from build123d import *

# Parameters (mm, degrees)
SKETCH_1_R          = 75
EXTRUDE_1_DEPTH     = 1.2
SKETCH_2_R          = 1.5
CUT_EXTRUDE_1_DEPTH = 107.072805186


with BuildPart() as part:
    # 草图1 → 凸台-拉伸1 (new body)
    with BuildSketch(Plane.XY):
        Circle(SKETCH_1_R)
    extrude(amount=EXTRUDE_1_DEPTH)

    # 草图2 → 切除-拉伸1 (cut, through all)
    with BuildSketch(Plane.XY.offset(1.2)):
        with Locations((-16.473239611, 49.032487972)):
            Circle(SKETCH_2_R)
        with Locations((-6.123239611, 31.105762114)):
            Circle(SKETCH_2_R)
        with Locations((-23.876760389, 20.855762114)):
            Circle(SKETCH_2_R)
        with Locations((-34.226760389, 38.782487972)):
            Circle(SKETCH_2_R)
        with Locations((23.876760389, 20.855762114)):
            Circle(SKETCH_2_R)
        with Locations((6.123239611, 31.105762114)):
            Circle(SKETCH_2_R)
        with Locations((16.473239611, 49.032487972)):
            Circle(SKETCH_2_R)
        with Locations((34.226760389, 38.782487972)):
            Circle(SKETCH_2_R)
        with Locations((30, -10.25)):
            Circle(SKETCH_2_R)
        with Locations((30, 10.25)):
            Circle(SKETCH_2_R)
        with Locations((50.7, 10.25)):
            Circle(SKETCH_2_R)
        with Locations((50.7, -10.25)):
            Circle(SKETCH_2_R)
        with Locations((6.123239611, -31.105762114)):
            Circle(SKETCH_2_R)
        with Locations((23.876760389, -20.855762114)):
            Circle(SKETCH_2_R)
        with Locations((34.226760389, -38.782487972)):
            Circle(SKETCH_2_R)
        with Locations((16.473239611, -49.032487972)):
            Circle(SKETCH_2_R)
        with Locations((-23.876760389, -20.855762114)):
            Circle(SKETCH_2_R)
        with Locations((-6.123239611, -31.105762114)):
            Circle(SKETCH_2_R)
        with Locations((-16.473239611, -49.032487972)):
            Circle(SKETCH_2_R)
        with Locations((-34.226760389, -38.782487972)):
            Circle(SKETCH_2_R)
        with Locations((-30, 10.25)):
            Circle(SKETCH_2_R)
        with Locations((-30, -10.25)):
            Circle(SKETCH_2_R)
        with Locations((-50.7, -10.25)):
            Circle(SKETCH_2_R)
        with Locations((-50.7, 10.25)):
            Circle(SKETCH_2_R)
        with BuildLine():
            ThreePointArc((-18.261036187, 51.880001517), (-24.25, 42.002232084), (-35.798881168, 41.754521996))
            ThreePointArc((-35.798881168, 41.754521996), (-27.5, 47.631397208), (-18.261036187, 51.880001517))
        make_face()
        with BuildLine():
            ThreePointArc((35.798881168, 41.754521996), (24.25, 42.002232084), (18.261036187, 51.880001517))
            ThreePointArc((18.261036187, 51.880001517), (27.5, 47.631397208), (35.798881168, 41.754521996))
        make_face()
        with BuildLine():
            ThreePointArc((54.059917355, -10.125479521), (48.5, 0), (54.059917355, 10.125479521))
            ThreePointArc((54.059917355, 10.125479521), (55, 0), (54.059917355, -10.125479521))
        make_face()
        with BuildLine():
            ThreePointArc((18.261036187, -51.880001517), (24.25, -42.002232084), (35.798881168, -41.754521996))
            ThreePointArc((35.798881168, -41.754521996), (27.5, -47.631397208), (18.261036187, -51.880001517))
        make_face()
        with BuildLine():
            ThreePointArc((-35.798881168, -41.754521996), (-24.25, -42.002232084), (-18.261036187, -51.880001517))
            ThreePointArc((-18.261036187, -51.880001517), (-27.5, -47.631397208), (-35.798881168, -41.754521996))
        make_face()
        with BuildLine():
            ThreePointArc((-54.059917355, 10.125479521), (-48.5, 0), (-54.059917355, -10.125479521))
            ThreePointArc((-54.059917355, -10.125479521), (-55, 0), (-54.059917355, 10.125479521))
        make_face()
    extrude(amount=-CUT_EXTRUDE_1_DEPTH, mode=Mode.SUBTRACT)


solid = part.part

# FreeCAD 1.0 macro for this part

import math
import FreeCAD as App
import Part
import Sketcher
from FreeCAD import Vector
Q = App.Units.Quantity

doc = App.newDocument("Part")
params = doc.addObject("Spreadsheet::Sheet", "Params")
for row, (alias, value) in enumerate([
    ("sketch1_diameter", "150 mm"),
    ("pad1_length", "1.2 mm"),
    ("sketch2_diameter", "3 mm"),
    ("sketch2_radius", "12 mm"),
    ("sketch2_radius2", "55 mm"),
], start=1):
    params.set(f"A{row}", alias)
    params.set(f"B{row}", "=" + value)
    params.setAlias(f"B{row}", alias)

body = doc.addObject("PartDesign::Body", "Body")

# Sketch on XY plane
sketch1 = doc.addObject("Sketcher::SketchObject", "Sketch")
body.addObject(sketch1)
sketch1.AttachmentSupport = (doc.XY_Plane, [""])
sketch1.MapMode = "FlatFace"
sketch1.addGeometry(Part.Circle(Vector(0, 0, 0), Vector(0, 0, 1), 75), False)
sketch1.addConstraint(Sketcher.Constraint("Coincident", 0, 3, -1, 1))
sketch1.addConstraint(Sketcher.Constraint("Diameter", 0, Q("150 mm")))
sketch1.setExpression("Constraints[1]", "Params.sketch1_diameter")
pad1 = doc.addObject("PartDesign::Pad", "Pad")
body.addObject(pad1)
pad1.Profile = sketch1
pad1.setExpression("Length", "Params.pad1_length")

# Sketch on XY plane
sketch2 = doc.addObject("Sketcher::SketchObject", "Sketch001")
body.addObject(sketch2)
sketch2.AttachmentSupport = (doc.XY_Plane, [""])
sketch2.MapMode = "FlatFace"
sketch2.AttachmentOffset = App.Placement(Vector(0, 0, 1.2), App.Rotation())
sketch2.addGeometry(Part.Circle(Vector(-16.5, 49, 0), Vector(0, 0, 1), 1.5), False)
sketch2.addGeometry(Part.Circle(Vector(-6.1, 31.1, 0), Vector(0, 0, 1), 1.5), False)
sketch2.addGeometry(Part.Circle(Vector(-23.9, 20.9, 0), Vector(0, 0, 1), 1.5), False)
sketch2.addGeometry(Part.Circle(Vector(-34.2, 38.8, 0), Vector(0, 0, 1), 1.5), False)
sketch2.addGeometry(Part.Circle(Vector(23.9, 20.9, 0), Vector(0, 0, 1), 1.5), False)
sketch2.addGeometry(Part.Circle(Vector(6.1, 31.1, 0), Vector(0, 0, 1), 1.5), False)
sketch2.addGeometry(Part.Circle(Vector(16.5, 49, 0), Vector(0, 0, 1), 1.5), False)
sketch2.addGeometry(Part.Circle(Vector(34.2, 38.8, 0), Vector(0, 0, 1), 1.5), False)
sketch2.addGeometry(Part.Circle(Vector(30, -10.2, 0), Vector(0, 0, 1), 1.5), False)
sketch2.addGeometry(Part.Circle(Vector(30, 10.2, 0), Vector(0, 0, 1), 1.5), False)
sketch2.addGeometry(Part.Circle(Vector(50.7, 10.2, 0), Vector(0, 0, 1), 1.5), False)
sketch2.addGeometry(Part.Circle(Vector(50.7, -10.2, 0), Vector(0, 0, 1), 1.5), False)
sketch2.addGeometry(Part.Circle(Vector(6.1, -31.1, 0), Vector(0, 0, 1), 1.5), False)
sketch2.addGeometry(Part.Circle(Vector(23.9, -20.9, 0), Vector(0, 0, 1), 1.5), False)
sketch2.addGeometry(Part.Circle(Vector(34.2, -38.8, 0), Vector(0, 0, 1), 1.5), False)
sketch2.addGeometry(Part.Circle(Vector(16.5, -49, 0), Vector(0, 0, 1), 1.5), False)
sketch2.addGeometry(Part.Circle(Vector(-23.9, -20.9, 0), Vector(0, 0, 1), 1.5), False)
sketch2.addGeometry(Part.Circle(Vector(-6.1, -31.1, 0), Vector(0, 0, 1), 1.5), False)
sketch2.addGeometry(Part.Circle(Vector(-16.5, -49, 0), Vector(0, 0, 1), 1.5), False)
sketch2.addGeometry(Part.Circle(Vector(-34.2, -38.8, 0), Vector(0, 0, 1), 1.5), False)
sketch2.addGeometry(Part.Circle(Vector(-30, 10.2, 0), Vector(0, 0, 1), 1.5), False)
sketch2.addGeometry(Part.Circle(Vector(-30, -10.2, 0), Vector(0, 0, 1), 1.5), False)
sketch2.addGeometry(Part.Circle(Vector(-50.7, -10.2, 0), Vector(0, 0, 1), 1.5), False)
sketch2.addGeometry(Part.Circle(Vector(-50.7, 10.2, 0), Vector(0, 0, 1), 1.5), False)
sketch2.addGeometry(Part.ArcOfCircle(Part.Circle(Vector(-30.2, 52.4, 0), Vector(0, 0, 1), 12), math.radians(-118), math.radians(-2)), False)
sketch2.addGeometry(Part.ArcOfCircle(Part.Circle(Vector(0, 0, 0), Vector(0, 0, 1), 55), math.radians(109), math.radians(131)), False)
sketch2.addGeometry(Part.ArcOfCircle(Part.Circle(Vector(30.2, 52.4, 0), Vector(0, 0, 1), 12), math.radians(-178), math.radians(-62)), False)
sketch2.addGeometry(Part.ArcOfCircle(Part.Circle(Vector(0, 0, 0), Vector(0, 0, 1), 55), math.radians(49), math.radians(71)), False)
sketch2.addGeometry(Part.ArcOfCircle(Part.Circle(Vector(60.5, 0, 0), Vector(0, 0, 1), 12), math.radians(122), math.radians(238)), False)
sketch2.addGeometry(Part.ArcOfCircle(Part.Circle(Vector(0, 0, 0), Vector(0, 0, 1), 55), math.radians(-11), math.radians(11)), False)
sketch2.addGeometry(Part.ArcOfCircle(Part.Circle(Vector(30.2, -52.4, 0), Vector(0, 0, 1), 12), math.radians(62), math.radians(178)), False)
sketch2.addGeometry(Part.ArcOfCircle(Part.Circle(Vector(0, 0, 0), Vector(0, 0, 1), 55), math.radians(-71), math.radians(-49)), False)
sketch2.addGeometry(Part.ArcOfCircle(Part.Circle(Vector(-30.2, -52.4, 0), Vector(0, 0, 1), 12), math.radians(2), math.radians(118)), False)
sketch2.addGeometry(Part.ArcOfCircle(Part.Circle(Vector(0, 0, 0), Vector(0, 0, 1), 55), math.radians(-131), math.radians(-109)), False)
sketch2.addGeometry(Part.ArcOfCircle(Part.Circle(Vector(-60.5, 0, 0), Vector(0, 0, 1), 12), math.radians(-58), math.radians(58)), False)
sketch2.addGeometry(Part.ArcOfCircle(Part.Circle(Vector(0, 0, 0), Vector(0, 0, 1), 55), math.radians(169), math.radians(191)), False)
sketch2.addConstraint(Sketcher.Constraint("Coincident", 24, 1, 25, 2))
sketch2.addConstraint(Sketcher.Constraint("Coincident", 25, 1, 24, 2))
sketch2.addConstraint(Sketcher.Constraint("Coincident", 26, 1, 27, 2))
sketch2.addConstraint(Sketcher.Constraint("Coincident", 27, 1, 26, 2))
sketch2.addConstraint(Sketcher.Constraint("Coincident", 28, 1, 29, 2))
sketch2.addConstraint(Sketcher.Constraint("Coincident", 29, 1, 28, 2))
sketch2.addConstraint(Sketcher.Constraint("Coincident", 30, 1, 31, 2))
sketch2.addConstraint(Sketcher.Constraint("Coincident", 31, 1, 30, 2))
sketch2.addConstraint(Sketcher.Constraint("Coincident", 32, 1, 33, 2))
sketch2.addConstraint(Sketcher.Constraint("Coincident", 33, 1, 32, 2))
sketch2.addConstraint(Sketcher.Constraint("Coincident", 34, 1, 35, 2))
sketch2.addConstraint(Sketcher.Constraint("Coincident", 35, 1, 34, 2))
sketch2.addConstraint(Sketcher.Constraint("Coincident", 25, 3, -1, 1))
sketch2.addConstraint(Sketcher.Constraint("Coincident", 27, 3, -1, 1))
sketch2.addConstraint(Sketcher.Constraint("Coincident", 29, 3, -1, 1))
sketch2.addConstraint(Sketcher.Constraint("Coincident", 31, 3, -1, 1))
sketch2.addConstraint(Sketcher.Constraint("Coincident", 33, 3, -1, 1))
sketch2.addConstraint(Sketcher.Constraint("Coincident", 35, 3, -1, 1))
sketch2.addConstraint(Sketcher.Constraint("Equal", 0, 1))
sketch2.addConstraint(Sketcher.Constraint("Equal", 1, 2))
sketch2.addConstraint(Sketcher.Constraint("Equal", 2, 3))
sketch2.addConstraint(Sketcher.Constraint("Equal", 3, 4))
sketch2.addConstraint(Sketcher.Constraint("Equal", 4, 5))
sketch2.addConstraint(Sketcher.Constraint("Equal", 5, 6))
sketch2.addConstraint(Sketcher.Constraint("Equal", 6, 7))
sketch2.addConstraint(Sketcher.Constraint("Equal", 7, 8))
sketch2.addConstraint(Sketcher.Constraint("Equal", 8, 9))
sketch2.addConstraint(Sketcher.Constraint("Equal", 9, 10))
sketch2.addConstraint(Sketcher.Constraint("Equal", 10, 11))
sketch2.addConstraint(Sketcher.Constraint("Equal", 11, 12))
sketch2.addConstraint(Sketcher.Constraint("Equal", 12, 13))
sketch2.addConstraint(Sketcher.Constraint("Equal", 13, 14))
sketch2.addConstraint(Sketcher.Constraint("Equal", 14, 15))
sketch2.addConstraint(Sketcher.Constraint("Equal", 15, 16))
sketch2.addConstraint(Sketcher.Constraint("Equal", 16, 17))
sketch2.addConstraint(Sketcher.Constraint("Equal", 17, 18))
sketch2.addConstraint(Sketcher.Constraint("Equal", 18, 19))
sketch2.addConstraint(Sketcher.Constraint("Equal", 19, 20))
sketch2.addConstraint(Sketcher.Constraint("Equal", 20, 21))
sketch2.addConstraint(Sketcher.Constraint("Equal", 21, 22))
sketch2.addConstraint(Sketcher.Constraint("Equal", 22, 23))
sketch2.addConstraint(Sketcher.Constraint("Equal", 24, 26))
sketch2.addConstraint(Sketcher.Constraint("Equal", 25, 27))
sketch2.addConstraint(Sketcher.Constraint("Equal", 26, 28))
sketch2.addConstraint(Sketcher.Constraint("Equal", 27, 29))
sketch2.addConstraint(Sketcher.Constraint("Equal", 28, 30))
sketch2.addConstraint(Sketcher.Constraint("Equal", 29, 31))
sketch2.addConstraint(Sketcher.Constraint("Equal", 30, 32))
sketch2.addConstraint(Sketcher.Constraint("Equal", 31, 33))
sketch2.addConstraint(Sketcher.Constraint("Equal", 32, 34))
sketch2.addConstraint(Sketcher.Constraint("Equal", 33, 35))
sketch2.addConstraint(Sketcher.Constraint("Symmetric", 1, 3, 12, 3, -1, 1))
sketch2.addConstraint(Sketcher.Constraint("Symmetric", 2, 3, 13, 3, -1, 1))
sketch2.addConstraint(Sketcher.Constraint("Symmetric", 3, 3, 14, 3, -1, 1))
sketch2.addConstraint(Sketcher.Constraint("Symmetric", 0, 3, 15, 3, -1, 1))
sketch2.addConstraint(Sketcher.Constraint("Symmetric", 4, 3, 16, 3, -1, 1))
sketch2.addConstraint(Sketcher.Constraint("Symmetric", 5, 3, 17, 3, -1, 1))
sketch2.addConstraint(Sketcher.Constraint("Symmetric", 6, 3, 18, 3, -1, 1))
sketch2.addConstraint(Sketcher.Constraint("Symmetric", 7, 3, 19, 3, -1, 1))
sketch2.addConstraint(Sketcher.Constraint("Symmetric", 8, 3, 20, 3, -1, 1))
sketch2.addConstraint(Sketcher.Constraint("Symmetric", 9, 3, 21, 3, -1, 1))
sketch2.addConstraint(Sketcher.Constraint("Symmetric", 10, 3, 22, 3, -1, 1))
sketch2.addConstraint(Sketcher.Constraint("Symmetric", 11, 3, 23, 3, -1, 1))
sketch2.addConstraint(Sketcher.Constraint("Symmetric", 24, 3, 30, 3, -1, 1))
sketch2.addConstraint(Sketcher.Constraint("Symmetric", 26, 3, 32, 3, -1, 1))
sketch2.addConstraint(Sketcher.Constraint("Symmetric", 28, 3, 34, 3, -1, 1))
sketch2.addConstraint(Sketcher.Constraint("Symmetric", 2, 3, 4, 3, -2))
sketch2.addConstraint(Sketcher.Constraint("Symmetric", 1, 3, 5, 3, -2))
sketch2.addConstraint(Sketcher.Constraint("Symmetric", 0, 3, 6, 3, -2))
sketch2.addConstraint(Sketcher.Constraint("Symmetric", 3, 3, 7, 3, -2))
sketch2.addConstraint(Sketcher.Constraint("Symmetric", 9, 3, 20, 3, -2))
sketch2.addConstraint(Sketcher.Constraint("Symmetric", 11, 3, 22, 3, -2))
sketch2.addConstraint(Sketcher.Constraint("Symmetric", 24, 3, 26, 3, -2))
sketch2.addConstraint(Sketcher.Constraint("PointOnObject", 28, 3, -1))
sketch2.addConstraint(Sketcher.Constraint("Horizontal", 9, 3, 10, 3))
sketch2.addConstraint(Sketcher.Constraint("Diameter", 0, Q("3 mm")))
sketch2.addConstraint(Sketcher.Constraint("Radius", 24, Q("12 mm")))
sketch2.addConstraint(Sketcher.Constraint("Radius", 25, Q("55 mm")))
sketch2.addConstraint(Sketcher.Constraint("DistanceX", -1, 1, 8, 3, Q("30 mm")))
sketch2.addConstraint(Sketcher.Constraint("DistanceX", 1, 3, 4, 3, Q("30 mm")))
sketch2.addConstraint(Sketcher.Constraint("DistanceX", -1, 1, 10, 3, Q("50.7 mm")))
sketch2.addConstraint(Sketcher.Constraint("DistanceX", -1, 1, 28, 3, Q("60.5 mm")))
sketch2.addConstraint(Sketcher.Constraint("DistanceX", 0, 3, 7, 3, Q("50.7 mm")))
sketch2.addConstraint(Sketcher.Constraint("DistanceY", 8, 3, 9, 3, Q("20.5 mm")))
sketch2.addConstraint(Sketcher.Constraint("DistanceX", 24, 3, -1, 1, Q("30.25 mm")))
sketch2.addConstraint(Sketcher.Constraint("DistanceX", 0, 3, 1, 3, Q("10.35 mm")))
sketch2.addConstraint(Sketcher.Constraint("DistanceY", 2, 3, 1, 3, Q("10.25 mm")))
sketch2.addConstraint(Sketcher.Constraint("DistanceY", 3, 3, 0, 3, Q("10.25 mm")))
sketch2.addConstraint(Sketcher.Constraint("DistanceX", 0, 3, -1, 1, Q("16.47324 mm")))
sketch2.addConstraint(Sketcher.Constraint("DistanceX", 24, 1, -1, 1, Q("35.798881 mm")))
sketch2.addConstraint(Sketcher.Constraint("DistanceY", 3, 3, 24, 3, Q("13.612049 mm")))
sketch2.addConstraint(Sketcher.Constraint("DistanceY", 2, 3, 24, 1, Q("20.89876 mm")))
sketch2.setExpression("Constraints[75]", "Params.sketch2_diameter")
sketch2.setExpression("Constraints[76]", "Params.sketch2_radius")
sketch2.setExpression("Constraints[77]", "Params.sketch2_radius2")
pocket1 = doc.addObject("PartDesign::Pocket", "Pocket")
body.addObject(pocket1)
pocket1.Profile = sketch2
pocket1.Type = "ThroughAll"

doc.recompute()
